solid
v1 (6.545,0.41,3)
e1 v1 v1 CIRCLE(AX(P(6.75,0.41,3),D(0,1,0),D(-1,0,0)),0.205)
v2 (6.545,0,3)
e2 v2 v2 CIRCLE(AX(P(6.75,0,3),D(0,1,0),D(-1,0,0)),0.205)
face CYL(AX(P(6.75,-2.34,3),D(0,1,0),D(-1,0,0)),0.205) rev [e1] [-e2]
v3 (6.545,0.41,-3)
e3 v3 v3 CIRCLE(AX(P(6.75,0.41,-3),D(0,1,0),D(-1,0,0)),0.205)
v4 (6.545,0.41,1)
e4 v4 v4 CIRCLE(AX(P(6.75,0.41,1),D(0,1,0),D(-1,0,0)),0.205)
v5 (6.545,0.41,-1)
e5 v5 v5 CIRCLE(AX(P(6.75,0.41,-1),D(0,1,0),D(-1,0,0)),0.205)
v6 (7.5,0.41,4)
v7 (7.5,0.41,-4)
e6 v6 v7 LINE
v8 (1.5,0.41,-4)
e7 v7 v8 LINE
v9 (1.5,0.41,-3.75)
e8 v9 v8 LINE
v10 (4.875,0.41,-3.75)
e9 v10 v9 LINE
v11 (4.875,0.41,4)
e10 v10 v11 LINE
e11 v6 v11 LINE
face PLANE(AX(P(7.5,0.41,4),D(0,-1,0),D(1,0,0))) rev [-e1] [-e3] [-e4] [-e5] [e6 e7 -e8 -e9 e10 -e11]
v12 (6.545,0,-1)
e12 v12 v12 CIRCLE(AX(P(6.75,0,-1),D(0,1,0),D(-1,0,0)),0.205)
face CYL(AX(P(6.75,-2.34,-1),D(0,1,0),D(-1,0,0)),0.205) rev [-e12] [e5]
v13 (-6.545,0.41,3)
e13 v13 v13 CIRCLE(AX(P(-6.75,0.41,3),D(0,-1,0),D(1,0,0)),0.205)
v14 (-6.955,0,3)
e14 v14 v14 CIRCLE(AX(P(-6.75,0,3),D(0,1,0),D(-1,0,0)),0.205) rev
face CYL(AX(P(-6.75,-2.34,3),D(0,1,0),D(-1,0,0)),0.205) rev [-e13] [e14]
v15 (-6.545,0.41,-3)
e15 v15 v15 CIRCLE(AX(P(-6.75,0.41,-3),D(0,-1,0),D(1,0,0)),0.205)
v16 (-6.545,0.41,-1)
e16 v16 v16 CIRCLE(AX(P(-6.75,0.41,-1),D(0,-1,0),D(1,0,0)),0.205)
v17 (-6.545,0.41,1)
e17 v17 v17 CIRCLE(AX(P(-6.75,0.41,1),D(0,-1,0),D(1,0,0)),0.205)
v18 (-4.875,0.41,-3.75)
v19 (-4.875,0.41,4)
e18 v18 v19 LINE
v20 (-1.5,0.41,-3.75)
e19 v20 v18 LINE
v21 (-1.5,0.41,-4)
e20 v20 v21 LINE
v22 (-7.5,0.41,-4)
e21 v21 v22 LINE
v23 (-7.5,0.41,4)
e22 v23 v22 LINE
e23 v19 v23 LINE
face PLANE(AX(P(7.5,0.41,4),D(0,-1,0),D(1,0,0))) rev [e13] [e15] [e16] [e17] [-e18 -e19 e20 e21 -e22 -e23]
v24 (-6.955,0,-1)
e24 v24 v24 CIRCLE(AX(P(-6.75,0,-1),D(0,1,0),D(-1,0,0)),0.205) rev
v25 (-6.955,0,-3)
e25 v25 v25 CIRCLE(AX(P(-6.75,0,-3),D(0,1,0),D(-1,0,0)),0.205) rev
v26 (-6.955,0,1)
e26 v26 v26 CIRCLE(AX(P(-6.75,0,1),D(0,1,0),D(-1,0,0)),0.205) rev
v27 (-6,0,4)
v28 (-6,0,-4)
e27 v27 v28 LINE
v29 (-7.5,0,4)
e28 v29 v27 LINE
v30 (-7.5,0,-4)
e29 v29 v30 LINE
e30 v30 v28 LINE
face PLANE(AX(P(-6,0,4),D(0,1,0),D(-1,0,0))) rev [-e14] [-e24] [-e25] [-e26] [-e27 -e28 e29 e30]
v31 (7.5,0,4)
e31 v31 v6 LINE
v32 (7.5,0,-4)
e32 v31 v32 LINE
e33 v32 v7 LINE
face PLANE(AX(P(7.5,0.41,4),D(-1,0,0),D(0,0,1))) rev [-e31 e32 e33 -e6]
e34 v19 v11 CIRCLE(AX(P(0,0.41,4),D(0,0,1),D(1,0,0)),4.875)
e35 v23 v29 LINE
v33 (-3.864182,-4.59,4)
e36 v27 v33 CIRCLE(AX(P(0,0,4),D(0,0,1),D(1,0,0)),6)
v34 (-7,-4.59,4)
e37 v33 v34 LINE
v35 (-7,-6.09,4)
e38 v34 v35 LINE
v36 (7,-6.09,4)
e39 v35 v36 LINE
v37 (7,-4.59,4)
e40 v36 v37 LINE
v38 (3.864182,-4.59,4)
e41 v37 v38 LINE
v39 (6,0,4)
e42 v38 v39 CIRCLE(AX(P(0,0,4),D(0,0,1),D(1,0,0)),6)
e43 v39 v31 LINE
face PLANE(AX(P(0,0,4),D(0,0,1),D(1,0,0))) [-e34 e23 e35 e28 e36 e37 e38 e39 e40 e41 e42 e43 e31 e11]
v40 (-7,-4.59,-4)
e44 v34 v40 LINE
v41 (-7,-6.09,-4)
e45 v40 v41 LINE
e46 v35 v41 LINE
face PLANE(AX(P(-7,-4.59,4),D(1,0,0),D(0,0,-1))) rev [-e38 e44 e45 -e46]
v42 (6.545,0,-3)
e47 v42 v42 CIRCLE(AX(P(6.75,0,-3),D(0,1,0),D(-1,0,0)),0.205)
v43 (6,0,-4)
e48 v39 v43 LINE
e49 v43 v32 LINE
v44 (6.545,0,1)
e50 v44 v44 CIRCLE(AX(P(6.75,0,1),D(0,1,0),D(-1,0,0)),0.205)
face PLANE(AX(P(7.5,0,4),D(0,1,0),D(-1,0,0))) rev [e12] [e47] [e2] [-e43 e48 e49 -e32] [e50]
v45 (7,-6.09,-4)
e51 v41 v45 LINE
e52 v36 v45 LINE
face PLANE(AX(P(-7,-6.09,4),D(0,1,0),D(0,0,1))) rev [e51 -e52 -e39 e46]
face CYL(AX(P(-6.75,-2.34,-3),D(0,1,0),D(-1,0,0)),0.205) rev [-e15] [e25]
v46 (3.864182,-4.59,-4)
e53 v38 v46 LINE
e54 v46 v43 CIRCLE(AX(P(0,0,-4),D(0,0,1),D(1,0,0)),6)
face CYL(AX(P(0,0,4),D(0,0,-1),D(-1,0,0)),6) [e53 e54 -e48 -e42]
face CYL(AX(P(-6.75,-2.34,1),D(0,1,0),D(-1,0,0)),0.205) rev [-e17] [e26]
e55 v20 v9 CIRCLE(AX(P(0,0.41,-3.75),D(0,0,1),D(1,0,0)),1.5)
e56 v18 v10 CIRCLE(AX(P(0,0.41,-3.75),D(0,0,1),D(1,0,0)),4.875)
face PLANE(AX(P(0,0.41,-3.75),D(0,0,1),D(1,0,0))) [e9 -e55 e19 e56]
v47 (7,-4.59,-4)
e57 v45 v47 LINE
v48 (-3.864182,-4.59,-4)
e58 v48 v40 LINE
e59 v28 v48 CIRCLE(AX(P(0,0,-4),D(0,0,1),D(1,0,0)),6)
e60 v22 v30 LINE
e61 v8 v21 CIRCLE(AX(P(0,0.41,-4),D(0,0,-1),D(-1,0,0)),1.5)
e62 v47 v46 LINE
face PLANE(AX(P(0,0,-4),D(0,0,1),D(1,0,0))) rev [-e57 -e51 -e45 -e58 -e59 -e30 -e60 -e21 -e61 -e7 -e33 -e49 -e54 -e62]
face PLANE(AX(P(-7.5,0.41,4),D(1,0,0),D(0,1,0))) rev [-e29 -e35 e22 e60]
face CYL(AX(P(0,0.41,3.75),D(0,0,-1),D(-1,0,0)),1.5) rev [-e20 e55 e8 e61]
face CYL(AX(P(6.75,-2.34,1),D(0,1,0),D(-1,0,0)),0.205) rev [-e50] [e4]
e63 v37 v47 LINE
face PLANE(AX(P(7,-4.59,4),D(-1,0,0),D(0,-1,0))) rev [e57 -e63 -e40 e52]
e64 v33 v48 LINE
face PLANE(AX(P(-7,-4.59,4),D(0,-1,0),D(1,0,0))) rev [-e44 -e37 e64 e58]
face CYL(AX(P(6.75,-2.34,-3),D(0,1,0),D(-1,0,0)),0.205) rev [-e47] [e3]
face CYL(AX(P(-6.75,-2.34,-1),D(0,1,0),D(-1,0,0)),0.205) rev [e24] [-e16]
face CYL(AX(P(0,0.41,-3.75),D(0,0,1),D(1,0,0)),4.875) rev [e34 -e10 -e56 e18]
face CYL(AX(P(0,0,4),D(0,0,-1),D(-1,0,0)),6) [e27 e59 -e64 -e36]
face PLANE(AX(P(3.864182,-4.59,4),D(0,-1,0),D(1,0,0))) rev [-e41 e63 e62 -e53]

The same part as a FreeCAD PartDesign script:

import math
import FreeCAD as App
import Part
import Sketcher
from FreeCAD import Vector

doc = App.newDocument("Part")
body = doc.addObject("PartDesign::Body", "Body")

# Sketch on XY plane
sketch1 = doc.addObject("Sketcher::SketchObject", "Sketch")
body.addObject(sketch1)
sketch1.AttachmentSupport = (doc.XY_Plane, [""])
sketch1.MapMode = "FlatFace"
sketch1.addGeometry([
    Part.LineSegment(Vector(6, 0, 0), Vector(7.5, 0, 0)),  # 0
    Part.LineSegment(Vector(7.5, 0, 0), Vector(7.5, 0.41, 0)),  # 1
    Part.LineSegment(Vector(7.5, 0.41, 0), Vector(-7.5, 0.41, 0)),  # 2
    Part.LineSegment(Vector(-7.5, 0.41, 0), Vector(-7.5, 0, 0)),  # 3
    Part.LineSegment(Vector(-7.5, 0, 0), Vector(-6, 0, 0)),  # 4
    Part.ArcOfCircle(Part.Circle(Vector(0, 0, 0), Vector(0, 0, 1), 6), math.radians(-180), math.radians(-130.093008)),  # 5
    Part.LineSegment(Vector(-3.864182, -4.59, 0), Vector(-7, -4.59, 0)),  # 6
    Part.LineSegment(Vector(-7, -4.59, 0), Vector(-7, -6.09, 0)),  # 7
    Part.LineSegment(Vector(-7, -6.09, 0), Vector(7, -6.09, 0)),  # 8
    Part.LineSegment(Vector(7, -6.09, 0), Vector(7, -4.59, 0)),  # 9
    Part.LineSegment(Vector(7, -4.59, 0), Vector(3.864182, -4.59, 0)),  # 10
    Part.ArcOfCircle(Part.Circle(Vector(0, 0, 0), Vector(0, 0, 1), 6), math.radians(-49.906992), math.radians(0)),  # 11
], False)
sketch1.addConstraint([
    Sketcher.Constraint("Coincident", 0, 2, 1, 1),
    Sketcher.Constraint("Coincident", 1, 2, 2, 1),
    Sketcher.Constraint("Coincident", 2, 2, 3, 1),
    Sketcher.Constraint("Coincident", 3, 2, 4, 1),
    Sketcher.Constraint("Coincident", 4, 2, 5, 1),
    Sketcher.Constraint("Coincident", 5, 2, 6, 1),
    Sketcher.Constraint("Coincident", 6, 2, 7, 1),
    Sketcher.Constraint("Coincident", 7, 2, 8, 1),
    Sketcher.Constraint("Coincident", 8, 2, 9, 1),
    Sketcher.Constraint("Coincident", 9, 2, 10, 1),
    Sketcher.Constraint("Coincident", 10, 2, 11, 1),
    Sketcher.Constraint("Coincident", 11, 2, 0, 1),
    Sketcher.Constraint("Horizontal", 0),
    Sketcher.Constraint("Vertical", 1),
    Sketcher.Constraint("Horizontal", 2),
    Sketcher.Constraint("Vertical", 3),
    Sketcher.Constraint("Horizontal", 4),
    Sketcher.Constraint("Horizontal", 6),
    Sketcher.Constraint("Vertical", 7),
    Sketcher.Constraint("Horizontal", 8),
    Sketcher.Constraint("Vertical", 9),
    Sketcher.Constraint("Horizontal", 10),
    Sketcher.Constraint("Coincident", 5, 3, -1, 1),
    Sketcher.Constraint("Coincident", 11, 3, -1, 1),
    Sketcher.Constraint("Equal", 5, 11),
    Sketcher.Constraint("Symmetric", 0, 2, 3, 2, -1, 1),
    Sketcher.Constraint("Symmetric", 6, 2, 9, 2, -2),
    Sketcher.Constraint("PointOnObject", 0, 2, -1),
    Sketcher.Constraint("Equal", 4, 7),
    Sketcher.Constraint("Radius", 5, 6.0),
    Sketcher.Constraint("DistanceX", 2, 2, 2, 1, 15.0),
    Sketcher.Constraint("DistanceX", 8, 1, 8, 2, 14.0),
    Sketcher.Constraint("DistanceY", 5, 2, 2, 2, 5.0),
    Sketcher.Constraint("DistanceY", 1, 1, 1, 2, 0.41),
])
pad1 = doc.addObject("PartDesign::Pad", "Pad")
body.addObject(pad1)
pad1.Profile = sketch1
pad1.Length = 8
pad1.Midplane = True

# Sketch on XY plane
sketch2 = doc.addObject("Sketcher::SketchObject", "Sketch001")
body.addObject(sketch2)
sketch2.AttachmentSupport = (doc.XY_Plane, [""])
sketch2.MapMode = "FlatFace"
sketch2.AttachmentOffset = App.Placement(Vector(0, 0, 4), App.Rotation())
sketch2.addGeometry([
    Part.LineSegment(Vector(4.875, 0.41, 0), Vector(-4.875, 0.41, 0)),
    Part.ArcOfCircle(Part.Circle(Vector(0, 0.41, 0), Vector(0, 0, 1), 4.875), math.radians(180), math.radians(360)),
], False)
sketch2.addConstraint([
    Sketcher.Constraint("Coincident", 0, 1, 1, 2),
    Sketcher.Constraint("Coincident", 1, 1, 0, 2),
    Sketcher.Constraint("Horizontal", 0),
    Sketcher.Constraint("PointOnObject", 1, 3, -2),
    Sketcher.Constraint("Horizontal", 1, 3, 0, 1),
    Sketcher.Constraint("Radius", 1, 4.875),
    Sketcher.Constraint("DistanceY", -1, 1, 1, 3, 0.41),
])
pocket1 = doc.addObject("PartDesign::Pocket", "Pocket")
body.addObject(pocket1)
pocket1.Profile = sketch2
pocket1.Length = 7.75

# Sketch on XY plane
sketch3 = doc.addObject("Sketcher::SketchObject", "Sketch002")
body.addObject(sketch3)
sketch3.AttachmentSupport = (doc.XY_Plane, [""])
sketch3.MapMode = "FlatFace"
sketch3.AttachmentOffset = App.Placement(Vector(0, 0, -4), App.Rotation())
sketch3.addGeometry([
    Part.LineSegment(Vector(-1.5, 0.41, 0), Vector(1.5, 0.41, 0)),
    Part.ArcOfCircle(Part.Circle(Vector(0, 0.41, 0), Vector(0, 0, 1), 1.5), math.radians(180), math.radians(360)),
], False)
sketch3.addConstraint([
    Sketcher.Constraint("Coincident", 0, 1, 1, 1),
    Sketcher.Constraint("Coincident", 1, 2, 0, 2),
    Sketcher.Constraint("Horizontal", 0),
    Sketcher.Constraint("PointOnObject", 1, 3, -2),
    Sketcher.Constraint("Horizontal", 1, 3, 0, 1),
    Sketcher.Constraint("Radius", 1, 1.5),
    Sketcher.Constraint("DistanceY", -1, 1, 1, 3, 0.41),
])
pocket2 = doc.addObject("PartDesign::Pocket", "Pocket001")
body.addObject(pocket2)
pocket2.Profile = sketch3
pocket2.Length = 7.75
pocket2.Reversed = True

# Sketch on XZ plane
sketch4 = doc.addObject("Sketcher::SketchObject", "Sketch003")
body.addObject(sketch4)
sketch4.AttachmentSupport = (doc.XZ_Plane, [""])
sketch4.MapMode = "FlatFace"
sketch4.AttachmentOffset = App.Placement(Vector(0, 0, -0.41), App.Rotation())
sketch4.addGeometry([
    Part.Circle(Vector(6.75, -3, 0), Vector(0, 0, 1), 0.205),
    Part.Circle(Vector(6.75, -1, 0), Vector(0, 0, 1), 0.205),
    Part.Circle(Vector(6.75, 1, 0), Vector(0, 0, 1), 0.205),
    Part.Circle(Vector(6.75, 3, 0), Vector(0, 0, 1), 0.205),
], False)
sketch4.addConstraint([
    Sketcher.Constraint("Equal", 0, 1),
    Sketcher.Constraint("Equal", 1, 2),
    Sketcher.Constraint("Equal", 2, 3),
    Sketcher.Constraint("Symmetric", 1, 3, 2, 3, -1),
    Sketcher.Constraint("Symmetric", 0, 3, 3, 3, -1),
    Sketcher.Constraint("Vertical", 0, 3, 1, 3),
    Sketcher.Constraint("Diameter", 0, 0.41),
    Sketcher.Constraint("DistanceY", 0, 3, -1, 1, 3.0),
    Sketcher.Constraint("DistanceY", 1, 3, -1, 1, 1.0),
    Sketcher.Constraint("DistanceX", -1, 1, 0, 3, 6.75),
])
pocket3 = doc.addObject("PartDesign::Pocket", "Pocket002")
body.addObject(pocket3)
pocket3.Profile = sketch4
pocket3.Length = 2.75
pocket3.Reversed = True
doc.recompute()

mirrored = doc.addObject("PartDesign::Mirrored", "Mirrored")
body.addObject(mirrored)
mirrored.Originals = [pocket3]
mirrored.MirrorPlane = (doc.YZ_Plane, [""])
body.Tip = mirrored

doc.recompute()
